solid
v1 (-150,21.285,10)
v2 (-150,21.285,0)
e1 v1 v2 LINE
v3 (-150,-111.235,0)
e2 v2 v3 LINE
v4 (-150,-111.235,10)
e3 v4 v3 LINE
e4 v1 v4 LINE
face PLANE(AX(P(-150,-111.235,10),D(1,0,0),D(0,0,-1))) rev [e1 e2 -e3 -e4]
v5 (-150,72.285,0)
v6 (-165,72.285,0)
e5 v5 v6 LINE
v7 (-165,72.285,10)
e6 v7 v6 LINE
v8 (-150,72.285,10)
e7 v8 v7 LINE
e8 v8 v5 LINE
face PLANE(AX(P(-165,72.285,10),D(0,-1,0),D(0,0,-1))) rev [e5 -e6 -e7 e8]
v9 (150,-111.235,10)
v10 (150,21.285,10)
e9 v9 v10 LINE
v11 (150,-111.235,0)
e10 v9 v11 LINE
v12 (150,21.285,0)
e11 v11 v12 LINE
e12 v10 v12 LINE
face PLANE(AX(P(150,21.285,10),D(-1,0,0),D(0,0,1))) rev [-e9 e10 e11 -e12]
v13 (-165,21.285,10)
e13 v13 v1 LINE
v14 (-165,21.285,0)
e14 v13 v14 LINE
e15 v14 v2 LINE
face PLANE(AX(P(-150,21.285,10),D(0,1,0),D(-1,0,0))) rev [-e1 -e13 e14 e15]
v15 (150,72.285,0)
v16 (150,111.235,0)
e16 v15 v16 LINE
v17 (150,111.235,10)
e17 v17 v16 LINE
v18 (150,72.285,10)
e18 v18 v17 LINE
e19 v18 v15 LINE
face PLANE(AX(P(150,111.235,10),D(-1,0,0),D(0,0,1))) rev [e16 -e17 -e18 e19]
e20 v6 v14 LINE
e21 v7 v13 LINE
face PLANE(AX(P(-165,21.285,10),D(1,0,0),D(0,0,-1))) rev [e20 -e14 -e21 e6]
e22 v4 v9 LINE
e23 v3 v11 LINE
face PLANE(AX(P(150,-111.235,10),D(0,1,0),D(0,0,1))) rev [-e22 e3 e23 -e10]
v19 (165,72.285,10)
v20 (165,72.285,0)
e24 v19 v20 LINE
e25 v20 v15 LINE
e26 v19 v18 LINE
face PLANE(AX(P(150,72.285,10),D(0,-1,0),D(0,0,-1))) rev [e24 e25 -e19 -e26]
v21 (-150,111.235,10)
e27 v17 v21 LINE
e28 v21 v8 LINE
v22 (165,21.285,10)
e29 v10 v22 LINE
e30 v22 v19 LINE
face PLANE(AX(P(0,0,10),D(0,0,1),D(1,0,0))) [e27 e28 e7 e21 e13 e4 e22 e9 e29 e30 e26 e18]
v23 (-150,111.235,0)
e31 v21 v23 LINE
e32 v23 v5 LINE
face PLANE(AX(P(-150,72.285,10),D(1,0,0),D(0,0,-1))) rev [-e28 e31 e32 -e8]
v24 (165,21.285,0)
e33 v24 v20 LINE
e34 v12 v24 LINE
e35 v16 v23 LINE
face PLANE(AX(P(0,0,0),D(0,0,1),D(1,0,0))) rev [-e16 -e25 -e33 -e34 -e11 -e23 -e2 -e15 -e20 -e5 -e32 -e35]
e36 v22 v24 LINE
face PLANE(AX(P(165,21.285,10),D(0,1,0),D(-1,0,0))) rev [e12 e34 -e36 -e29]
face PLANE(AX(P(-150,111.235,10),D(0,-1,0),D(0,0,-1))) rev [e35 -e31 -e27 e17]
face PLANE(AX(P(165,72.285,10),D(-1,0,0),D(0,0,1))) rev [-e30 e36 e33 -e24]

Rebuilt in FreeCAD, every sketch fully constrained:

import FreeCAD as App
import Part
import Sketcher
from FreeCAD import Vector
Q = App.Units.Quantity


def add_polygon(sketch, points):
    """Adds a closed chain of lines whose ends are joined by coincident constraints."""
    first, n = sketch.GeometryCount, len(points)
    for a, b in zip(points, points[1:] + points[:1]):
        sketch.addGeometry(Part.LineSegment(App.Vector(*a, 0), App.Vector(*b, 0)), False)
    for i in range(n):
        sketch.addConstraint(Sketcher.Constraint("Coincident", first + i, 2, first + (i + 1) % n, 1))

doc = App.newDocument("Part")
body = doc.addObject("PartDesign::Body", "Body")

sketch1 = body.newObject("Sketcher::SketchObject", "Sketch")
sketch1.AttachmentSupport = (doc.getObject("XY_Plane"), [""])
sketch1.MapMode = "FlatFace"
add_polygon(sketch1, [(-150, 21.285), (-150, -111.235), (150, -111.235), (150, 21.285), (165, 21.285), (165, 72.285), (150, 72.285), (150, 111.235), (-150, 111.235), (-150, 72.285), (-165, 72.285), (-165, 21.285)])
sketch1.addConstraint([
    Sketcher.Constraint("Vertical", 0),
    Sketcher.Constraint("Horizontal", 1),
    Sketcher.Constraint("Vertical", 2),
    Sketcher.Constraint("Horizontal", 3),
    Sketcher.Constraint("Vertical", 4),
    Sketcher.Constraint("Horizontal", 5),
    Sketcher.Constraint("Vertical", 6),
    Sketcher.Constraint("Horizontal", 7),
    Sketcher.Constraint("Vertical", 8),
    Sketcher.Constraint("Horizontal", 9),
    Sketcher.Constraint("Vertical", 10),
    Sketcher.Constraint("Horizontal", 11),
    Sketcher.Constraint("Symmetric", 0, 2, 6, 2, -1, 1),
    Sketcher.Constraint("Symmetric", 5, 2, 8, 2, -2),
    Sketcher.Constraint("Symmetric", 3, 2, 10, 2, -2),
    Sketcher.Constraint("Vertical", 2, 2, 5, 2),
    Sketcher.Constraint("DistanceX", 1, 1, 1, 2, Q("300 mm")),
    Sketcher.Constraint("DistanceX", 3, 1, 3, 2, Q("15 mm")),
    Sketcher.Constraint("DistanceY", 4, 1, 4, 2, Q("51 mm")),
    Sketcher.Constraint("DistanceY", 0, 2, 0, 1, Q("132.52 mm")),
    Sketcher.Constraint("DistanceY", 6, 1, 6, 2, Q("38.95 mm")),
])
pad1 = body.newObject("PartDesign::Pad", "Pad")
pad1.Profile = sketch1
pad1.Length = 10

doc.recompute()
